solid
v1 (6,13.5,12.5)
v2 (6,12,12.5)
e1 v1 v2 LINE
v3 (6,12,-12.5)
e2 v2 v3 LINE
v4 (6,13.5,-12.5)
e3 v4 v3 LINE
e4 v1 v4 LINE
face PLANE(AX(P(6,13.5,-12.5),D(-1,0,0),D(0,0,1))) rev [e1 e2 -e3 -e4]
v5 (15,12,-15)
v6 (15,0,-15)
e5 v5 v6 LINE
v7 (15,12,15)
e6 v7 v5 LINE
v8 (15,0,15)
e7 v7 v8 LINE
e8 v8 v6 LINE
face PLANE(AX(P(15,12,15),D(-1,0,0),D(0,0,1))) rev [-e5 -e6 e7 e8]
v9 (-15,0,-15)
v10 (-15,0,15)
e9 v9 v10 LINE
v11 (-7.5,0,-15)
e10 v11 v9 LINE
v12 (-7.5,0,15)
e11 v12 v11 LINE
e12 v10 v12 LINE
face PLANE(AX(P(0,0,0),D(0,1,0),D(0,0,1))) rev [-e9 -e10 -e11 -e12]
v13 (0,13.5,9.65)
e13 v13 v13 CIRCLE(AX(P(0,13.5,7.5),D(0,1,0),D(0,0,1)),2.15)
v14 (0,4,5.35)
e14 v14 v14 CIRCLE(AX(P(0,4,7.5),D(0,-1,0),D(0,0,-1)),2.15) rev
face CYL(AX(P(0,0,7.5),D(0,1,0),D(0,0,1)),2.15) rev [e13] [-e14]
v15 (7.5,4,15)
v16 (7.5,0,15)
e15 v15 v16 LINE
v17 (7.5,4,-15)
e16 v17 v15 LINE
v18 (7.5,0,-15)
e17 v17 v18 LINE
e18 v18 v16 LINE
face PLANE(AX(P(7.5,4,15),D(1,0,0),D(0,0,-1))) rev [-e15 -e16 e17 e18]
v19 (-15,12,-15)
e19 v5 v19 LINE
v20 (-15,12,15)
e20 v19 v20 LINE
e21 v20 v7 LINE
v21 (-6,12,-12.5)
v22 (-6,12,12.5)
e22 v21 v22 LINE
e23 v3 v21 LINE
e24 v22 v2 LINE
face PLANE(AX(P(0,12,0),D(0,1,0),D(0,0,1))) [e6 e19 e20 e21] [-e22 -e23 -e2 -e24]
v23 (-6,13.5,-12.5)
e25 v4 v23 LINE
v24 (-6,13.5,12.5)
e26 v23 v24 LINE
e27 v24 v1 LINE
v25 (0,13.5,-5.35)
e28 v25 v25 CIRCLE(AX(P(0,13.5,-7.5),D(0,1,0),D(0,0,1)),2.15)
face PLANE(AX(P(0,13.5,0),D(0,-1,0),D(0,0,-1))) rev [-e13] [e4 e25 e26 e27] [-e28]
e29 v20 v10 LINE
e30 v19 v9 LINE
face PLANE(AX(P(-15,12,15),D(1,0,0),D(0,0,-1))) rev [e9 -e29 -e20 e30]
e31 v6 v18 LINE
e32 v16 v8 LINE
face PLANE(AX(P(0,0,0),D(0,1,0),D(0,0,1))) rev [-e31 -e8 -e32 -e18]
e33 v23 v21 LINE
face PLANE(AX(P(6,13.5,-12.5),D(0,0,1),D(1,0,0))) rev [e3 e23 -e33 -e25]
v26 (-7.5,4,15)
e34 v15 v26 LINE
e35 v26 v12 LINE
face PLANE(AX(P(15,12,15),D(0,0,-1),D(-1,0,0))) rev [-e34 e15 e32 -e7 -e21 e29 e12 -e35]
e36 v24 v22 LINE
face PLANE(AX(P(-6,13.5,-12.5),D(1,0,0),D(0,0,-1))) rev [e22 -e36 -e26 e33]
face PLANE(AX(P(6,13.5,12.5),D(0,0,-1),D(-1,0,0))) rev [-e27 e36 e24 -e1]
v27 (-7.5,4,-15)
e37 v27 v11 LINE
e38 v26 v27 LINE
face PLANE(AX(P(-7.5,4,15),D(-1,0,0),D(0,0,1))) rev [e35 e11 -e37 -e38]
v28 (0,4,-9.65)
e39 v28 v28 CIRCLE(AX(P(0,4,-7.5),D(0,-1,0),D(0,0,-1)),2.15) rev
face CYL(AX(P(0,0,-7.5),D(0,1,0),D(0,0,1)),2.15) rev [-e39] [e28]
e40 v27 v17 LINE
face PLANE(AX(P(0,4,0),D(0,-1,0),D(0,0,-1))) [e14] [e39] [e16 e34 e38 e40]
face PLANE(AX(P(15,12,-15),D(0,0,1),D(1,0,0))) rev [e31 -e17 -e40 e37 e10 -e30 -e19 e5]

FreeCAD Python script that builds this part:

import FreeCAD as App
import Part
import Sketcher
from FreeCAD import Vector
Q = App.Units.Quantity


def add_polygon(sketch, points):
    """Adds a closed chain of lines whose ends are joined by coincident constraints."""
    first, n = sketch.GeometryCount, len(points)
    for a, b in zip(points, points[1:] + points[:1]):
        sketch.addGeometry(Part.LineSegment(App.Vector(*a, 0), App.Vector(*b, 0)), False)
    for i in range(n):
        sketch.addConstraint(Sketcher.Constraint("Coincident", first + i, 2, first + (i + 1) % n, 1))

doc = App.newDocument("Part")
body = doc.addObject("PartDesign::Body", "Body")

sketch1 = body.newObject("Sketcher::SketchObject", "Sketch")
sketch1.AttachmentSupport = (doc.getObject("XZ_Plane"), [""])
sketch1.MapMode = "FlatFace"
add_polygon(sketch1, [(-15, -15), (-15, 15), (15, 15), (15, -15)])
sketch1.addConstraint([
    Sketcher.Constraint("Vertical", 0),
    Sketcher.Constraint("Horizontal", 1),
    Sketcher.Constraint("Vertical", 2),
    Sketcher.Constraint("Horizontal", 3),
    Sketcher.Constraint("Symmetric", 0, 2, 2, 2, -1, 1),
    Sketcher.Constraint("Equal", 3, 0),
    Sketcher.Constraint("DistanceX", 1, 1, 1, 2, Q("30 mm")),
])
pad1 = body.newObject("PartDesign::Pad", "Pad")
pad1.Profile = sketch1
pad1.Length = 12
pad1.Reversed = True

sketch2 = body.newObject("Sketcher::SketchObject", "Sketch001")
sketch2.AttachmentSupport = (doc.getObject("XZ_Plane"), [""])
sketch2.MapMode = "FlatFace"
sketch2.AttachmentOffset = App.Placement(Vector(0, 0, -12), App.Rotation())
sketch2.addGeometry([
    Part.Circle(Vector(0, 7.5, 0), Vector(0, 0, 1), 2.1),
    Part.Circle(Vector(0, -7.5, 0), Vector(0, 0, 1), 2.1),
], False)
sketch2.addConstraint([
    Sketcher.Constraint("Equal", 0, 1),
    Sketcher.Constraint("Symmetric", 0, 3, 1, 3, -1, 1),
    Sketcher.Constraint("PointOnObject", 0, 3, -2),
    Sketcher.Constraint("Diameter", 0, Q("4.3 mm")),
    Sketcher.Constraint("DistanceY", 1, 3, 0, 3, Q("15 mm")),
])
pocket1 = body.newObject("PartDesign::Pocket", "Pocket")
pocket1.Profile = sketch2
pocket1.Type = "ThroughAll"
pocket1.Reversed = True

sketch3 = body.newObject("Sketcher::SketchObject", "Sketch002")
sketch3.AttachmentSupport = (doc.getObject("XZ_Plane"), [""])
sketch3.MapMode = "FlatFace"
sketch3.AttachmentOffset = App.Placement(Vector(0, 0, -13.5), App.Rotation())
add_polygon(sketch3, [(-6, -12.5), (-6, 12.5), (6, 12.5), (6, -12.5)])
sketch3.addGeometry(Part.Circle(Vector(0, 7.5, 0), Vector(0, 0, 1), 2.1), False)
sketch3.addGeometry(Part.Circle(Vector(0, -7.5, 0), Vector(0, 0, 1), 2.1), False)
sketch3.addConstraint([
    Sketcher.Constraint("Vertical", 0),
    Sketcher.Constraint("Horizontal", 1),
    Sketcher.Constraint("Vertical", 2),
    Sketcher.Constraint("Horizontal", 3),
    Sketcher.Constraint("Equal", 4, 5),
    Sketcher.Constraint("Symmetric", 4, 3, 5, 3, -1, 1),
    Sketcher.Constraint("Symmetric", 0, 2, 2, 2, -1, 1),
    Sketcher.Constraint("PointOnObject", 4, 3, -2),
    Sketcher.Constraint("Diameter", 4, Q("4.3 mm")),
    Sketcher.Constraint("DistanceX", 1, 1, 1, 2, Q("12 mm")),
    Sketcher.Constraint("DistanceY", 0, 1, 0, 2, Q("25 mm")),
    Sketcher.Constraint("DistanceY", 5, 3, 4, 3, Q("15 mm")),
])
pad2 = body.newObject("PartDesign::Pad", "Pad001")
pad2.Profile = sketch3
pad2.Length = 1.5

sketch4 = body.newObject("Sketcher::SketchObject", "Sketch003")
sketch4.AttachmentSupport = (doc.getObject("XZ_Plane"), [""])
sketch4.MapMode = "FlatFace"
add_polygon(sketch4, [(-8, 15), (-8, -15), (8, -15), (8, 15)])
sketch4.addConstraint([
    Sketcher.Constraint("Vertical", 0),
    Sketcher.Constraint("Horizontal", 1),
    Sketcher.Constraint("Vertical", 2),
    Sketcher.Constraint("Horizontal", 3),
    Sketcher.Constraint("Symmetric", 0, 2, 2, 2, -1, 1),
    Sketcher.Constraint("DistanceX", 1, 1, 1, 2, Q("15 mm")),
    Sketcher.Constraint("DistanceY", 0, 2, 0, 1, Q("30 mm")),
])
pocket2 = body.newObject("PartDesign::Pocket", "Pocket001")
pocket2.Profile = sketch4
pocket2.Length = 4

doc.recompute()
